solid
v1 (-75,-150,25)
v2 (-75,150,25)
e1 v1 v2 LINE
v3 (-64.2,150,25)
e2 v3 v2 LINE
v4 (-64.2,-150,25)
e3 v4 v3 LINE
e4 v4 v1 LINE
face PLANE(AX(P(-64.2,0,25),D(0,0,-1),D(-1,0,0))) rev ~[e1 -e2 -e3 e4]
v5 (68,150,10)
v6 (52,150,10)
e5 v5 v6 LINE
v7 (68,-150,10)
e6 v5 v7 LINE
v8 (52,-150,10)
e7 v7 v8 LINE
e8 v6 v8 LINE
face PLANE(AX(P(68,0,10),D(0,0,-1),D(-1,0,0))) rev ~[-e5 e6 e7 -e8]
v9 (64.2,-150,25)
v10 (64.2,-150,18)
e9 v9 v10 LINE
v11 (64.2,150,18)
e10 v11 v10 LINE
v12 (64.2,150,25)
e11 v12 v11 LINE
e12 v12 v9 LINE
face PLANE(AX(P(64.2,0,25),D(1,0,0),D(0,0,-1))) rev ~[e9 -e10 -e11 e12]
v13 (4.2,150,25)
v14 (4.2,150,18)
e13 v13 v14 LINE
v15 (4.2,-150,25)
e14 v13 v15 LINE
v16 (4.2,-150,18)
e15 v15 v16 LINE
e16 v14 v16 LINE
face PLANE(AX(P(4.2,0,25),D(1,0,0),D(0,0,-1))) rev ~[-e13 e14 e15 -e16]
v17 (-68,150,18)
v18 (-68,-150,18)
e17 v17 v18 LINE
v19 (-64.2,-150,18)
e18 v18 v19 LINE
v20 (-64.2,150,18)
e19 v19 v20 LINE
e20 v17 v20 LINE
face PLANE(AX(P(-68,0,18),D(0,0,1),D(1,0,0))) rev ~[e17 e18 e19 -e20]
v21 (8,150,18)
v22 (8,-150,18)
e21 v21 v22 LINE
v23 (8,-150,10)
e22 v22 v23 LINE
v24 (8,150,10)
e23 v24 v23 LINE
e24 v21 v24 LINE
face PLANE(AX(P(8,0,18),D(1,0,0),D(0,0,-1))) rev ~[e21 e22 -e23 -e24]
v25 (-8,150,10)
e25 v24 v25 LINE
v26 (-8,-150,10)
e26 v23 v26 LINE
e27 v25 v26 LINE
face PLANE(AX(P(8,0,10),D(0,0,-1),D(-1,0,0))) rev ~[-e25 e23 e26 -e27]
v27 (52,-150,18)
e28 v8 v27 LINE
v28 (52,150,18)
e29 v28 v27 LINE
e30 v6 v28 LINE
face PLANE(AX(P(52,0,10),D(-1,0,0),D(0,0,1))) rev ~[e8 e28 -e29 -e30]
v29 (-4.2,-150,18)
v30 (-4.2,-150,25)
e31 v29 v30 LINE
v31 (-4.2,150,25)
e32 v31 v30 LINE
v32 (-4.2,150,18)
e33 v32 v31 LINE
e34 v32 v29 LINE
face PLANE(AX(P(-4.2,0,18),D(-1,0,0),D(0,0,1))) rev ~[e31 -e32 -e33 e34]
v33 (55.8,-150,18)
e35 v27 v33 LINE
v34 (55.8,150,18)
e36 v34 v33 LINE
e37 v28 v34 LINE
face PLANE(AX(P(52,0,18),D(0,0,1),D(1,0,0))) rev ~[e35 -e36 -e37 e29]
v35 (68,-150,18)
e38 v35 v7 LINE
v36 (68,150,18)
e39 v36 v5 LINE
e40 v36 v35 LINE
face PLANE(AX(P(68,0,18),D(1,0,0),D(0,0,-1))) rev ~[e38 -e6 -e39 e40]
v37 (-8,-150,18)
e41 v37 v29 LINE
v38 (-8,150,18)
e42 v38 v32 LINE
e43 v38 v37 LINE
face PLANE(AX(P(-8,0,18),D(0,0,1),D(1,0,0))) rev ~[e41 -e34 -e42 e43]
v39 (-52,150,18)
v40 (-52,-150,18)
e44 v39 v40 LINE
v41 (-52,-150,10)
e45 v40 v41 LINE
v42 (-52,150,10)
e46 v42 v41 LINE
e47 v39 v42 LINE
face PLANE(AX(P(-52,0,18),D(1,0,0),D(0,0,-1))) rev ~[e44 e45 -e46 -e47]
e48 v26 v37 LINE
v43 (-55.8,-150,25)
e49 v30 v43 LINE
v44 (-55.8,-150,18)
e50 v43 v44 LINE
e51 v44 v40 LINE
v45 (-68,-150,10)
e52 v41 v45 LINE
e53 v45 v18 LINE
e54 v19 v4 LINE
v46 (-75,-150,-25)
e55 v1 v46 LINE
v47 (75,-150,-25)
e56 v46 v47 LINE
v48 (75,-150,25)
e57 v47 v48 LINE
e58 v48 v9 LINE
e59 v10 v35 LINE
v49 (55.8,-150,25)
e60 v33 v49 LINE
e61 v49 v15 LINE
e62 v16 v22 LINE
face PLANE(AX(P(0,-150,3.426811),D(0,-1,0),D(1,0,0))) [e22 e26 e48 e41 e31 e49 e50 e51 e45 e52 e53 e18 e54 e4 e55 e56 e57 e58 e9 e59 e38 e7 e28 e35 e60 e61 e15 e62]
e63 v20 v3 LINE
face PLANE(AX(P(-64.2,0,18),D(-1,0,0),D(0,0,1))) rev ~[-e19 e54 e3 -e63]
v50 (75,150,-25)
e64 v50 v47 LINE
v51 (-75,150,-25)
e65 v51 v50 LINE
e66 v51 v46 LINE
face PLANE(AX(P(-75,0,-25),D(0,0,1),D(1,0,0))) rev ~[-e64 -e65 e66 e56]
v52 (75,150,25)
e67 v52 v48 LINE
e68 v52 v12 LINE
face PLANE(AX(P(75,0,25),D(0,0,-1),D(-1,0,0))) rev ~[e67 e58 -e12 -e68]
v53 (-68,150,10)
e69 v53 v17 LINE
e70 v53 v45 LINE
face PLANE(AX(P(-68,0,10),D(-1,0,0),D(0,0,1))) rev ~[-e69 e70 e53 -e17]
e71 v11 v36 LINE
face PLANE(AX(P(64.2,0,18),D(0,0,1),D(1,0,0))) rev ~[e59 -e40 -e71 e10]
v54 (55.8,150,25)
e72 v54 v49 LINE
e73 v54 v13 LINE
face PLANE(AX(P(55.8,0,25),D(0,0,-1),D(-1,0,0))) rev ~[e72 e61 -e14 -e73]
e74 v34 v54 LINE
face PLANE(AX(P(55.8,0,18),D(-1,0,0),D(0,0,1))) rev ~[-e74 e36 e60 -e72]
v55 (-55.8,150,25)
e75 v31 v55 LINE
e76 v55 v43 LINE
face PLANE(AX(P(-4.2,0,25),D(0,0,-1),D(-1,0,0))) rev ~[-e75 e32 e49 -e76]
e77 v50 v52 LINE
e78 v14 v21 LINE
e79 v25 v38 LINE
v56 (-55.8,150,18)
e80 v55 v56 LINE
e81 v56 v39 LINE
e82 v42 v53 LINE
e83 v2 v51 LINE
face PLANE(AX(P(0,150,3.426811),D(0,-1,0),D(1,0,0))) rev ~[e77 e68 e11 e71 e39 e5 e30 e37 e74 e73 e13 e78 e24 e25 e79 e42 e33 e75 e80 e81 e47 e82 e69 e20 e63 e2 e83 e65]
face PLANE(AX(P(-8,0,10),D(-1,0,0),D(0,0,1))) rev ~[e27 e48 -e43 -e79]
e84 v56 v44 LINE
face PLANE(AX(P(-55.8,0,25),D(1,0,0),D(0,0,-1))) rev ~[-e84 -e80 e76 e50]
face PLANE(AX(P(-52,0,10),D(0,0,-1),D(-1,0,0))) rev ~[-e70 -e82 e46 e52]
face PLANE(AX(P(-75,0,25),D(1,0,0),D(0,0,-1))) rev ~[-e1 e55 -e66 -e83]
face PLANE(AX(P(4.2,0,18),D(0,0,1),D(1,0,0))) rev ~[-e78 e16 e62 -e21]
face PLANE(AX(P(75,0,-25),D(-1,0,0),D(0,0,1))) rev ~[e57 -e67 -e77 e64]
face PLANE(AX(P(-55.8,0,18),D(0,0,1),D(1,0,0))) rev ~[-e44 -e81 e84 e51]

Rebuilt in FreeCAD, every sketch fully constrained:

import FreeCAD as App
import Part
import Sketcher


def add_polygon(sketch, points):
    """Adds a closed chain of lines whose ends are joined by coincident constraints."""
    first, n = sketch.GeometryCount, len(points)
    for a, b in zip(points, points[1:] + points[:1]):
        sketch.addGeometry(Part.LineSegment(App.Vector(*a, 0), App.Vector(*b, 0)), False)
    for i in range(n):
        sketch.addConstraint(Sketcher.Constraint("Coincident", first + i, 2, first + (i + 1) % n, 1))

doc = App.newDocument("Part")
body = doc.addObject("PartDesign::Body", "Body")

# Sketch on XZ plane
sketch1 = body.newObject("Sketcher::SketchObject", "Sketch")
sketch1.AttachmentSupport = (doc.getObject("XZ_Plane"), [""])
sketch1.MapMode = "FlatFace"
add_polygon(sketch1, [(-75, 25), (-75, -25), (75, -25), (75, 25), (64.2, 25), (64.2, 18), (68, 18), (68, 10), (52, 10), (52, 18), (55.8, 18), (55.8, 25), (4.2, 25), (4.2, 18), (8, 18), (8, 10), (-8, 10), (-8, 18), (-4.2, 18), (-4.2, 25), (-55.8, 25), (-55.8, 18), (-52, 18), (-52, 10), (-68, 10), (-68, 18), (-64.2, 18), (-64.2, 25)])  # lines 0-27
sketch1.addConstraint(Sketcher.Constraint("Vertical", 0))
sketch1.addConstraint(Sketcher.Constraint("Horizontal", 1))
sketch1.addConstraint(Sketcher.Constraint("Vertical", 2))
sketch1.addConstraint(Sketcher.Constraint("Horizontal", 3))
sketch1.addConstraint(Sketcher.Constraint("Vertical", 4))
sketch1.addConstraint(Sketcher.Constraint("Horizontal", 5))
sketch1.addConstraint(Sketcher.Constraint("Vertical", 6))
sketch1.addConstraint(Sketcher.Constraint("Horizontal", 7))
sketch1.addConstraint(Sketcher.Constraint("Vertical", 8))
sketch1.addConstraint(Sketcher.Constraint("Horizontal", 9))
sketch1.addConstraint(Sketcher.Constraint("Vertical", 10))
sketch1.addConstraint(Sketcher.Constraint("Horizontal", 11))
sketch1.addConstraint(Sketcher.Constraint("Vertical", 12))
sketch1.addConstraint(Sketcher.Constraint("Horizontal", 13))
sketch1.addConstraint(Sketcher.Constraint("Vertical", 14))
sketch1.addConstraint(Sketcher.Constraint("Horizontal", 15))
sketch1.addConstraint(Sketcher.Constraint("Vertical", 16))
sketch1.addConstraint(Sketcher.Constraint("Horizontal", 17))
sketch1.addConstraint(Sketcher.Constraint("Vertical", 18))
sketch1.addConstraint(Sketcher.Constraint("Horizontal", 19))
sketch1.addConstraint(Sketcher.Constraint("Vertical", 20))
sketch1.addConstraint(Sketcher.Constraint("Horizontal", 21))
sketch1.addConstraint(Sketcher.Constraint("Vertical", 22))
sketch1.addConstraint(Sketcher.Constraint("Horizontal", 23))
sketch1.addConstraint(Sketcher.Constraint("Vertical", 24))
sketch1.addConstraint(Sketcher.Constraint("Horizontal", 25))
sketch1.addConstraint(Sketcher.Constraint("Vertical", 26))
sketch1.addConstraint(Sketcher.Constraint("Horizontal", 27))
sketch1.addConstraint(Sketcher.Constraint("Symmetric", 0, 2, 2, 2, -1, 1))
sketch1.addConstraint(Sketcher.Constraint("Symmetric", 13, 2, 16, 2, -2))
sketch1.addConstraint(Sketcher.Constraint("Symmetric", 11, 2, 18, 2, -2))
sketch1.addConstraint(Sketcher.Constraint("Symmetric", 9, 2, 20, 2, -2))
sketch1.addConstraint(Sketcher.Constraint("Symmetric", 7, 2, 22, 2, -2))
sketch1.addConstraint(Sketcher.Constraint("Symmetric", 5, 2, 24, 2, -2))
sketch1.addConstraint(Sketcher.Constraint("Symmetric", 3, 2, 26, 2, -2))
sketch1.addConstraint(Sketcher.Constraint("Horizontal", 5, 2, 8, 2))
sketch1.addConstraint(Sketcher.Constraint("Horizontal", 3, 2, 10, 2))
sketch1.addConstraint(Sketcher.Constraint("Horizontal", 9, 2, 12, 2))
sketch1.addConstraint(Sketcher.Constraint("Horizontal", 7, 2, 14, 2))
sketch1.addConstraint(Sketcher.Constraint("Equal", 5, 9))
sketch1.addConstraint(Sketcher.Constraint("Equal", 9, 13))
sketch1.addConstraint(Sketcher.Constraint("Equal", 7, 15))
sketch1.addConstraint(Sketcher.Constraint("DistanceX", 1, 1, 1, 2, 150.0))
sketch1.addConstraint(Sketcher.Constraint("DistanceX", 7, 2, 7, 1, 16.0))
sketch1.addConstraint(Sketcher.Constraint("DistanceY", 0, 2, 0, 1, 50.0))
sketch1.addConstraint(Sketcher.Constraint("DistanceY", 4, 2, 4, 1, 7.0))
sketch1.addConstraint(Sketcher.Constraint("DistanceY", 6, 2, 6, 1, 8.0))
sketch1.addConstraint(Sketcher.Constraint("DistanceX", 3, 2, 3, 1, 10.8))
sketch1.addConstraint(Sketcher.Constraint("DistanceX", 5, 1, 5, 2, 3.8))
pad1 = body.newObject("PartDesign::Pad", "Pad")
pad1.Profile = sketch1
pad1.Type = "TwoLengths"
pad1.Length = 150
pad1.Length2 = 150
pad1.Reversed = True

doc.recompute()
